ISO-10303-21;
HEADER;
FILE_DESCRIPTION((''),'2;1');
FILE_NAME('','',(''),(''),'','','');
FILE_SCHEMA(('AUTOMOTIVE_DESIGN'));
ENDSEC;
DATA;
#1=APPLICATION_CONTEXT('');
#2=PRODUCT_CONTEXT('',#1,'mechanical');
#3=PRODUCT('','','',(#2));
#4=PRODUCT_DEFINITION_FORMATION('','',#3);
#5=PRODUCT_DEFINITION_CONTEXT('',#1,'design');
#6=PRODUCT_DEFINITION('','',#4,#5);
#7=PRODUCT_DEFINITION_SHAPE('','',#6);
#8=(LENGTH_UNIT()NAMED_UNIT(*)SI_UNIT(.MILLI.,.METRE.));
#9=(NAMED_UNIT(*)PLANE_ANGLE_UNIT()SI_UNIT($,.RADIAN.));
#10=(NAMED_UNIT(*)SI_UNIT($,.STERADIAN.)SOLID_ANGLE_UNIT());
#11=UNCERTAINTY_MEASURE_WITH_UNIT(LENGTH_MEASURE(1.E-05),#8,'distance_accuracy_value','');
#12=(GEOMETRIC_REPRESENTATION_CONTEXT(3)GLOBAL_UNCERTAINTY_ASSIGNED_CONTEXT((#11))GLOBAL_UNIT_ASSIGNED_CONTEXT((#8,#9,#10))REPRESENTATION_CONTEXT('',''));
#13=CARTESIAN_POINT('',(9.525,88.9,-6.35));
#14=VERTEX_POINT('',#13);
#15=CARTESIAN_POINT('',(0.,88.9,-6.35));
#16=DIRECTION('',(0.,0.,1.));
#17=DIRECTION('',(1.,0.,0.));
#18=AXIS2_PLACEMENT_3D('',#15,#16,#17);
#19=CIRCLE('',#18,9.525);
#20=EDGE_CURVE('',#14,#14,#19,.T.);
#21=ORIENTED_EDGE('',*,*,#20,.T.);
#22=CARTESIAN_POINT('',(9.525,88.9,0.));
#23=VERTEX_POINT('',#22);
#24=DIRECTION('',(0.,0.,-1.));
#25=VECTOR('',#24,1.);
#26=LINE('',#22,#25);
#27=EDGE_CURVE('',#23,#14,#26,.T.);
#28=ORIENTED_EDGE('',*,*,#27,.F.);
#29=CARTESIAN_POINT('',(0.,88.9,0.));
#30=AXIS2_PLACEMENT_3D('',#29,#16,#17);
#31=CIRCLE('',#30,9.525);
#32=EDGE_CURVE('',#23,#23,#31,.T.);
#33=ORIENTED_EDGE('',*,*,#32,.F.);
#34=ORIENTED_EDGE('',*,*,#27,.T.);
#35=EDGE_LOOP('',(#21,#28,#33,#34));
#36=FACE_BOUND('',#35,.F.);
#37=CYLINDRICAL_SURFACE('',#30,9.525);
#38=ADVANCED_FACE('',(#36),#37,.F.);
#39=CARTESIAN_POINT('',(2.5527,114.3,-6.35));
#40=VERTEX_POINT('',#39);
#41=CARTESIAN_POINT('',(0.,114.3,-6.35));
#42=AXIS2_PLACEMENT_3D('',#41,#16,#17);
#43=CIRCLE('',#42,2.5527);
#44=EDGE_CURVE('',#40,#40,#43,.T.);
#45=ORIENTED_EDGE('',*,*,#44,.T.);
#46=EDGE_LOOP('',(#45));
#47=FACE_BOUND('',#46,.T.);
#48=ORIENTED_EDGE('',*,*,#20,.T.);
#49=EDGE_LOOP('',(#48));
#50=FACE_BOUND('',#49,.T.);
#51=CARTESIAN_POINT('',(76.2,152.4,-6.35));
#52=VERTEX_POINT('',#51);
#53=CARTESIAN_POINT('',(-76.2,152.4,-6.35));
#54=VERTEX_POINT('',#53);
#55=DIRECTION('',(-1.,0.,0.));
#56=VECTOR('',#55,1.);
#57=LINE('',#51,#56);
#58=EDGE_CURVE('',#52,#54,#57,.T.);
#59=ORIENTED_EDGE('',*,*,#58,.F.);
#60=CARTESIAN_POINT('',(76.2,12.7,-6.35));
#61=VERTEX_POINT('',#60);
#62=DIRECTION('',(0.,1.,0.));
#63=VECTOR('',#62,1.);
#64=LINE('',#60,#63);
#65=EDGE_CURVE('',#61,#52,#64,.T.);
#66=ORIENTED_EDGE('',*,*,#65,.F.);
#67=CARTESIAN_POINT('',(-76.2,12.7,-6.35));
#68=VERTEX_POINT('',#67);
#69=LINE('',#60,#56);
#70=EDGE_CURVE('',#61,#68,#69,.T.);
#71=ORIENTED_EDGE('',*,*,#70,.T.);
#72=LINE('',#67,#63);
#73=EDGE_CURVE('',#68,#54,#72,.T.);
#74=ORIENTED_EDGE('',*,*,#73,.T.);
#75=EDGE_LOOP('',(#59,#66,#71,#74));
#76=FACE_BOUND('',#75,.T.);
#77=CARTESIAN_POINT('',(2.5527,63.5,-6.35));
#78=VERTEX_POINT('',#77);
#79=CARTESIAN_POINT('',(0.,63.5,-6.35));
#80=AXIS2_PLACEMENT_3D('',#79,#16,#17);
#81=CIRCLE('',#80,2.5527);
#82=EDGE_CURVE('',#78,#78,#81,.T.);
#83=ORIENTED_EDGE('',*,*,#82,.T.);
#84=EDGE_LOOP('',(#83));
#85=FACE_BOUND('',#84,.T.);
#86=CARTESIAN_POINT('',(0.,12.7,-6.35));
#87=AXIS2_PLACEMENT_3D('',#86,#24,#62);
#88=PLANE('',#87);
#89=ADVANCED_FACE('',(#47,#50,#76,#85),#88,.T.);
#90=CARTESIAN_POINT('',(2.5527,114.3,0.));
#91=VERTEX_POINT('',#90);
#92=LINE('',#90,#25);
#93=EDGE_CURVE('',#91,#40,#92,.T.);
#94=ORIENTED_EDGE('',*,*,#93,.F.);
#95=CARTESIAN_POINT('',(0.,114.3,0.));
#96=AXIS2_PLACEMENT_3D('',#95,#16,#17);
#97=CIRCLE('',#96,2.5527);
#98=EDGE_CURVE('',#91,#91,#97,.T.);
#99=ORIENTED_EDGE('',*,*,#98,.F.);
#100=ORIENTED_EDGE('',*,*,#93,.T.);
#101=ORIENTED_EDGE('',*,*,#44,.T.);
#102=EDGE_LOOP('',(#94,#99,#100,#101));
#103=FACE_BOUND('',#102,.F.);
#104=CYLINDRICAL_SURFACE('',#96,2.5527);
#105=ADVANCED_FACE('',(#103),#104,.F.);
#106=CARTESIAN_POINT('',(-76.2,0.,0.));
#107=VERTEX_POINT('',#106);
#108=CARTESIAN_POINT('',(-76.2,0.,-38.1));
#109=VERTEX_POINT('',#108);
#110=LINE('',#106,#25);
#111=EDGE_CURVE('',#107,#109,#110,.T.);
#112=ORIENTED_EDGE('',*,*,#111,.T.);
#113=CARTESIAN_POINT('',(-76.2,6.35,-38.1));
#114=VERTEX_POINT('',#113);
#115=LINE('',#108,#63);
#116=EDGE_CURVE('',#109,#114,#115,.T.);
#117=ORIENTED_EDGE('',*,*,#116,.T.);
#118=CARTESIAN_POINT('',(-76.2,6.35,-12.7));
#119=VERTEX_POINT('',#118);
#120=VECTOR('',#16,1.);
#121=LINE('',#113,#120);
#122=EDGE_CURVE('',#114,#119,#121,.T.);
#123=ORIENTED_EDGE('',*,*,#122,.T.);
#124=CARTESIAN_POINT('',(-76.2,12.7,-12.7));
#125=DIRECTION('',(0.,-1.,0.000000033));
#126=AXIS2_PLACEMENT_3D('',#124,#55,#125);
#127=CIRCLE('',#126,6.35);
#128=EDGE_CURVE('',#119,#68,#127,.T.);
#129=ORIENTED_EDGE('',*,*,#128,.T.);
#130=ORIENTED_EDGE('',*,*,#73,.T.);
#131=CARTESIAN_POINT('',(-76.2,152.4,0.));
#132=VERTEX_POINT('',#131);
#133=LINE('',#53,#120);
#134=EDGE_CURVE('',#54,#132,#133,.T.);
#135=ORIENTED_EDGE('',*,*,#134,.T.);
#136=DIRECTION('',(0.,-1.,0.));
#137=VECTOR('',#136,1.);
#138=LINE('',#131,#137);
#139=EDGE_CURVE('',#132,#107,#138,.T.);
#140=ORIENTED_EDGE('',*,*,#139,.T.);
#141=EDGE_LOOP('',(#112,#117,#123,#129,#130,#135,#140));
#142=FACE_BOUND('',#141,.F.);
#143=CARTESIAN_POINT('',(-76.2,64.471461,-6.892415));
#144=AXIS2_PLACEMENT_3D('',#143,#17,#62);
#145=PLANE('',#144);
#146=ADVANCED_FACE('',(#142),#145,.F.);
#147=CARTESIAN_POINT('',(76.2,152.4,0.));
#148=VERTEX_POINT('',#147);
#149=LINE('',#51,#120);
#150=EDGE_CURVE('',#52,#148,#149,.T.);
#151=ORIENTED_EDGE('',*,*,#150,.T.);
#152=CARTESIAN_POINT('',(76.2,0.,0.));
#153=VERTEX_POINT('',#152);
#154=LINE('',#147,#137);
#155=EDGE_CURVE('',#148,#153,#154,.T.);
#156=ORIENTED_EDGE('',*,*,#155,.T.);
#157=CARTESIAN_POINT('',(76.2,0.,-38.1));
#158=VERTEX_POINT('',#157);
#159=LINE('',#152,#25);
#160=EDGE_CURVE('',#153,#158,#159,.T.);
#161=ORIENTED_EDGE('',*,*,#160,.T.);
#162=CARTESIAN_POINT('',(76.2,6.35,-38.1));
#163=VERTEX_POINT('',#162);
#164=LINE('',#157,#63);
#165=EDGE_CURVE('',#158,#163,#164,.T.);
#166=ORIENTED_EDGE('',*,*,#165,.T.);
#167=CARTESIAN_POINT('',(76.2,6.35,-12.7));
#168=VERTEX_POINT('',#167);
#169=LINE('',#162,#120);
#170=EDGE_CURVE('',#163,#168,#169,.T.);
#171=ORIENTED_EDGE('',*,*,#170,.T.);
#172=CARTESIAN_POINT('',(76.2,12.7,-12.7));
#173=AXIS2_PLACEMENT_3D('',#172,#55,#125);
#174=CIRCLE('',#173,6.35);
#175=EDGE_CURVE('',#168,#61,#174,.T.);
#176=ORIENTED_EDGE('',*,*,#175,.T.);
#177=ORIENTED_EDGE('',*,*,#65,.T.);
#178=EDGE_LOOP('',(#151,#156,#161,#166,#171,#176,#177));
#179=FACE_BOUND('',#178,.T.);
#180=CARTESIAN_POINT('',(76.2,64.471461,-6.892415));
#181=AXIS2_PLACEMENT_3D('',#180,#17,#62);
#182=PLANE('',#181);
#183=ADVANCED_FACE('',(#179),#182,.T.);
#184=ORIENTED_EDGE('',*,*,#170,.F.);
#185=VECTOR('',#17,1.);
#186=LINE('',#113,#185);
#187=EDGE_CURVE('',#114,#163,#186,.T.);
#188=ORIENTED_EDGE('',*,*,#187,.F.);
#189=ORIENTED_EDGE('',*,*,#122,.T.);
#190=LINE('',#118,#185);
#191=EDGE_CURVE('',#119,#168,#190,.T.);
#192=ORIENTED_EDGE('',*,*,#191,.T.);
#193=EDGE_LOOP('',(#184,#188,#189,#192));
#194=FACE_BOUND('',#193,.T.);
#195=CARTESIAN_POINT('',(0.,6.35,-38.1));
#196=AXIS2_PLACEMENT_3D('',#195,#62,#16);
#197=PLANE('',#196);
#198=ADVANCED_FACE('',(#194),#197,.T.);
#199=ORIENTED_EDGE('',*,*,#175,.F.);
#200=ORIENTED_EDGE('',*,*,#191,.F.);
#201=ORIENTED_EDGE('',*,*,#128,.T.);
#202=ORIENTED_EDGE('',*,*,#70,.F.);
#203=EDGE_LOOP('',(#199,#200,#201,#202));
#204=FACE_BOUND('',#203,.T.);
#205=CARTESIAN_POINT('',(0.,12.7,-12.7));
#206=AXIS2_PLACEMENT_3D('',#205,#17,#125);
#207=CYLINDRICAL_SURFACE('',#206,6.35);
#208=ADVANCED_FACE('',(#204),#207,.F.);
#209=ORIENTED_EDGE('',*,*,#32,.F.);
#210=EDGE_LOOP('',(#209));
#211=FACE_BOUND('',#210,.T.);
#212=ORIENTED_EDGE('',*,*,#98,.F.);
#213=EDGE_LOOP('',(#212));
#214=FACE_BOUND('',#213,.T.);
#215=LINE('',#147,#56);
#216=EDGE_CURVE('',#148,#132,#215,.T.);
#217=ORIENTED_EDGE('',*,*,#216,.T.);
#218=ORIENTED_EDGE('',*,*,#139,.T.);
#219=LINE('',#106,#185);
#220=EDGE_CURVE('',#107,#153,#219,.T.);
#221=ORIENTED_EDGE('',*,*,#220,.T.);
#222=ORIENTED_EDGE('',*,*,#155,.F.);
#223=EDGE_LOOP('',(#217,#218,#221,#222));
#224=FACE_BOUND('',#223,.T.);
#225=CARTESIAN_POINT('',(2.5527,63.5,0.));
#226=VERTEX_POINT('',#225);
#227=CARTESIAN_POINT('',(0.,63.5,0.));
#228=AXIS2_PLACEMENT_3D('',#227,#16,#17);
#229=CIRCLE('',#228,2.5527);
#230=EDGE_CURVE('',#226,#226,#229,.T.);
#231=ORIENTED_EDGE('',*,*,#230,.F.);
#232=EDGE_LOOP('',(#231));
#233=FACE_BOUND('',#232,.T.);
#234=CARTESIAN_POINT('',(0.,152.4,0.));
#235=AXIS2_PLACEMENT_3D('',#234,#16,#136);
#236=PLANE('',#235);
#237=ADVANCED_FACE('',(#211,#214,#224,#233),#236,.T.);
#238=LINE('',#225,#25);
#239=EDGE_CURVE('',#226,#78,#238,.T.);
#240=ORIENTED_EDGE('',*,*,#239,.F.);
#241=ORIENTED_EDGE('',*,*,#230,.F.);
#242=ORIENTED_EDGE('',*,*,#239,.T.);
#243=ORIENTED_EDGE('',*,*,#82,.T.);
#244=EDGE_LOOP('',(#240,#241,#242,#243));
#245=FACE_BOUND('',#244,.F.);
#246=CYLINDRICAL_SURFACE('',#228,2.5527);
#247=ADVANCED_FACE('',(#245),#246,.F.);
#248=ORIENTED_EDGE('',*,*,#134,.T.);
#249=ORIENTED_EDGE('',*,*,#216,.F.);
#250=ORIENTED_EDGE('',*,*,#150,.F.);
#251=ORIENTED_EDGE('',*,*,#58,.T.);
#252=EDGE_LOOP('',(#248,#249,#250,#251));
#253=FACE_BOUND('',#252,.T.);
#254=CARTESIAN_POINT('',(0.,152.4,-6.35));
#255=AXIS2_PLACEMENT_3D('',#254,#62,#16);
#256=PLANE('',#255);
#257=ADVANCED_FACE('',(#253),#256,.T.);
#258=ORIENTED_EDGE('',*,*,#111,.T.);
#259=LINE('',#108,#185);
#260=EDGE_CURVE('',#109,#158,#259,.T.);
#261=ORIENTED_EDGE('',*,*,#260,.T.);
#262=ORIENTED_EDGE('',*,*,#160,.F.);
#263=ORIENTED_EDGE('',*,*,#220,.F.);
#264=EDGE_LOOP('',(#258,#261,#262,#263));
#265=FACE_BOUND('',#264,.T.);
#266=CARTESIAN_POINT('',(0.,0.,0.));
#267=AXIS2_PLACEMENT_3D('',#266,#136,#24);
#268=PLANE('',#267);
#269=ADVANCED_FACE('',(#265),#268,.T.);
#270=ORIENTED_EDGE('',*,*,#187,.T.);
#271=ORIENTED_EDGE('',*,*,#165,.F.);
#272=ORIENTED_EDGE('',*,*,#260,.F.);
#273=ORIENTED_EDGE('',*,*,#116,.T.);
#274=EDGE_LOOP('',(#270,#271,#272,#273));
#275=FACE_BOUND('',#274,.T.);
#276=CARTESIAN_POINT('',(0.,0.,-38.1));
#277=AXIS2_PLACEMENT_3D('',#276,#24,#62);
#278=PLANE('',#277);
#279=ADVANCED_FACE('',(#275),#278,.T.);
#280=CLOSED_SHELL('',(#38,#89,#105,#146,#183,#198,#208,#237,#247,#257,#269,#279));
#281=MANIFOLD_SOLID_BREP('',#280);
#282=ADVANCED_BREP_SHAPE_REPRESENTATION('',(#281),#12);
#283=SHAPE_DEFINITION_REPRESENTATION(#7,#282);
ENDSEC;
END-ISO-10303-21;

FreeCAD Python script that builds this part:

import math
import FreeCAD as App
import Part
import Sketcher

V = App.Vector
Q = App.Units.Quantity

doc = App.newDocument("Part")
body = doc.addObject("PartDesign::Body", "Body")

sketch1 = doc.addObject("Sketcher::SketchObject", "Sketch")
body.addObject(sketch1)
sketch1.AttachmentSupport = (doc.YZ_Plane, [""])
sketch1.MapMode = "FlatFace"
sketch1.addGeometry(Part.LineSegment(V(152, 0, 0), V(0, 0, 0)), False)
sketch1.addGeometry(Part.LineSegment(V(0, 0, 0), V(0, -38, 0)), False)
sketch1.addGeometry(Part.LineSegment(V(0, -38, 0), V(6, -38, 0)), False)
sketch1.addGeometry(Part.LineSegment(V(6, -38, 0), V(6, -13, 0)), False)
sketch1.addGeometry(Part.ArcOfCircle(Part.Circle(V(13, -13, 0), V(0, 0, 1), 6), math.radians(90), math.radians(180)), False)
sketch1.addGeometry(Part.LineSegment(V(13, -6, 0), V(152, -6, 0)), False)
sketch1.addGeometry(Part.LineSegment(V(152, -6, 0), V(152, 0, 0)), False)
sketch1.addConstraint(Sketcher.Constraint("Coincident", 0, 2, 1, 1))
sketch1.addConstraint(Sketcher.Constraint("Coincident", 1, 2, 2, 1))
sketch1.addConstraint(Sketcher.Constraint("Coincident", 2, 2, 3, 1))
sketch1.addConstraint(Sketcher.Constraint("Tangent", 3, 2, 4, 2))
sketch1.addConstraint(Sketcher.Constraint("Tangent", 4, 1, 5, 1))
sketch1.addConstraint(Sketcher.Constraint("Coincident", 5, 2, 6, 1))
sketch1.addConstraint(Sketcher.Constraint("Coincident", 6, 2, 0, 1))
sketch1.addConstraint(Sketcher.Constraint("Horizontal", 0))
sketch1.addConstraint(Sketcher.Constraint("Vertical", 1))
sketch1.addConstraint(Sketcher.Constraint("Horizontal", 2))
sketch1.addConstraint(Sketcher.Constraint("Vertical", 3))
sketch1.addConstraint(Sketcher.Constraint("Horizontal", 5))
sketch1.addConstraint(Sketcher.Constraint("Vertical", 6))
sketch1.addConstraint(Sketcher.Constraint("Coincident", 0, 2, -1, 1))
sketch1.addConstraint(Sketcher.Constraint("Equal", 2, 6))
sketch1.addConstraint(Sketcher.Constraint("DistanceX", 0, 2, 0, 1, Q("6 in")))
sketch1.addConstraint(Sketcher.Constraint("DistanceY", 3, 1, 3, 2, Q("1 in")))
sketch1.addConstraint(Sketcher.Constraint("Radius", 4, Q("0.25 in")))
sketch1.addConstraint(Sketcher.Constraint("DistanceX", 5, 1, 5, 2, Q("5.5 in")))
pad1 = doc.addObject("PartDesign::Pad", "Pad")
body.addObject(pad1)
pad1.Profile = sketch1
pad1.Length = Q("6 in")
pad1.Midplane = True

sketch2 = doc.addObject("Sketcher::SketchObject", "Sketch001")
body.addObject(sketch2)
sketch2.AttachmentSupport = (doc.XY_Plane, [""])
sketch2.MapMode = "FlatFace"
sketch2.addGeometry(Part.Circle(V(0, 88.9, 0), V(0, 0, 1), 9.5), False)
sketch2.addGeometry(Part.Circle(V(0, 114.3, 0), V(0, 0, 1), 2.6), False)
sketch2.addGeometry(Part.Circle(V(0, 63.5, 0), V(0, 0, 1), 2.6), False)
sketch2.addConstraint(Sketcher.Constraint("Equal", 1, 2))
sketch2.addConstraint(Sketcher.Constraint("PointOnObject", 0, 3, -2))
sketch2.addConstraint(Sketcher.Constraint("PointOnObject", 1, 3, -2))
sketch2.addConstraint(Sketcher.Constraint("PointOnObject", 2, 3, -2))
sketch2.addConstraint(Sketcher.Constraint("Diameter", 0, Q("0.75 in")))
sketch2.addConstraint(Sketcher.Constraint("Diameter", 1, Q("0.201 in")))
sketch2.addConstraint(Sketcher.Constraint("DistanceY", 0, 3, 1, 3, Q("1 in")))
sketch2.addConstraint(Sketcher.Constraint("DistanceY", 2, 3, 0, 3, Q("1 in")))
sketch2.addConstraint(Sketcher.Constraint("DistanceY", -1, 1, 0, 3, Q("3.5 in")))
pocket1 = doc.addObject("PartDesign::Pocket", "Pocket")
body.addObject(pocket1)
pocket1.Profile = sketch2
pocket1.Type = "ThroughAll"

doc.recompute()
